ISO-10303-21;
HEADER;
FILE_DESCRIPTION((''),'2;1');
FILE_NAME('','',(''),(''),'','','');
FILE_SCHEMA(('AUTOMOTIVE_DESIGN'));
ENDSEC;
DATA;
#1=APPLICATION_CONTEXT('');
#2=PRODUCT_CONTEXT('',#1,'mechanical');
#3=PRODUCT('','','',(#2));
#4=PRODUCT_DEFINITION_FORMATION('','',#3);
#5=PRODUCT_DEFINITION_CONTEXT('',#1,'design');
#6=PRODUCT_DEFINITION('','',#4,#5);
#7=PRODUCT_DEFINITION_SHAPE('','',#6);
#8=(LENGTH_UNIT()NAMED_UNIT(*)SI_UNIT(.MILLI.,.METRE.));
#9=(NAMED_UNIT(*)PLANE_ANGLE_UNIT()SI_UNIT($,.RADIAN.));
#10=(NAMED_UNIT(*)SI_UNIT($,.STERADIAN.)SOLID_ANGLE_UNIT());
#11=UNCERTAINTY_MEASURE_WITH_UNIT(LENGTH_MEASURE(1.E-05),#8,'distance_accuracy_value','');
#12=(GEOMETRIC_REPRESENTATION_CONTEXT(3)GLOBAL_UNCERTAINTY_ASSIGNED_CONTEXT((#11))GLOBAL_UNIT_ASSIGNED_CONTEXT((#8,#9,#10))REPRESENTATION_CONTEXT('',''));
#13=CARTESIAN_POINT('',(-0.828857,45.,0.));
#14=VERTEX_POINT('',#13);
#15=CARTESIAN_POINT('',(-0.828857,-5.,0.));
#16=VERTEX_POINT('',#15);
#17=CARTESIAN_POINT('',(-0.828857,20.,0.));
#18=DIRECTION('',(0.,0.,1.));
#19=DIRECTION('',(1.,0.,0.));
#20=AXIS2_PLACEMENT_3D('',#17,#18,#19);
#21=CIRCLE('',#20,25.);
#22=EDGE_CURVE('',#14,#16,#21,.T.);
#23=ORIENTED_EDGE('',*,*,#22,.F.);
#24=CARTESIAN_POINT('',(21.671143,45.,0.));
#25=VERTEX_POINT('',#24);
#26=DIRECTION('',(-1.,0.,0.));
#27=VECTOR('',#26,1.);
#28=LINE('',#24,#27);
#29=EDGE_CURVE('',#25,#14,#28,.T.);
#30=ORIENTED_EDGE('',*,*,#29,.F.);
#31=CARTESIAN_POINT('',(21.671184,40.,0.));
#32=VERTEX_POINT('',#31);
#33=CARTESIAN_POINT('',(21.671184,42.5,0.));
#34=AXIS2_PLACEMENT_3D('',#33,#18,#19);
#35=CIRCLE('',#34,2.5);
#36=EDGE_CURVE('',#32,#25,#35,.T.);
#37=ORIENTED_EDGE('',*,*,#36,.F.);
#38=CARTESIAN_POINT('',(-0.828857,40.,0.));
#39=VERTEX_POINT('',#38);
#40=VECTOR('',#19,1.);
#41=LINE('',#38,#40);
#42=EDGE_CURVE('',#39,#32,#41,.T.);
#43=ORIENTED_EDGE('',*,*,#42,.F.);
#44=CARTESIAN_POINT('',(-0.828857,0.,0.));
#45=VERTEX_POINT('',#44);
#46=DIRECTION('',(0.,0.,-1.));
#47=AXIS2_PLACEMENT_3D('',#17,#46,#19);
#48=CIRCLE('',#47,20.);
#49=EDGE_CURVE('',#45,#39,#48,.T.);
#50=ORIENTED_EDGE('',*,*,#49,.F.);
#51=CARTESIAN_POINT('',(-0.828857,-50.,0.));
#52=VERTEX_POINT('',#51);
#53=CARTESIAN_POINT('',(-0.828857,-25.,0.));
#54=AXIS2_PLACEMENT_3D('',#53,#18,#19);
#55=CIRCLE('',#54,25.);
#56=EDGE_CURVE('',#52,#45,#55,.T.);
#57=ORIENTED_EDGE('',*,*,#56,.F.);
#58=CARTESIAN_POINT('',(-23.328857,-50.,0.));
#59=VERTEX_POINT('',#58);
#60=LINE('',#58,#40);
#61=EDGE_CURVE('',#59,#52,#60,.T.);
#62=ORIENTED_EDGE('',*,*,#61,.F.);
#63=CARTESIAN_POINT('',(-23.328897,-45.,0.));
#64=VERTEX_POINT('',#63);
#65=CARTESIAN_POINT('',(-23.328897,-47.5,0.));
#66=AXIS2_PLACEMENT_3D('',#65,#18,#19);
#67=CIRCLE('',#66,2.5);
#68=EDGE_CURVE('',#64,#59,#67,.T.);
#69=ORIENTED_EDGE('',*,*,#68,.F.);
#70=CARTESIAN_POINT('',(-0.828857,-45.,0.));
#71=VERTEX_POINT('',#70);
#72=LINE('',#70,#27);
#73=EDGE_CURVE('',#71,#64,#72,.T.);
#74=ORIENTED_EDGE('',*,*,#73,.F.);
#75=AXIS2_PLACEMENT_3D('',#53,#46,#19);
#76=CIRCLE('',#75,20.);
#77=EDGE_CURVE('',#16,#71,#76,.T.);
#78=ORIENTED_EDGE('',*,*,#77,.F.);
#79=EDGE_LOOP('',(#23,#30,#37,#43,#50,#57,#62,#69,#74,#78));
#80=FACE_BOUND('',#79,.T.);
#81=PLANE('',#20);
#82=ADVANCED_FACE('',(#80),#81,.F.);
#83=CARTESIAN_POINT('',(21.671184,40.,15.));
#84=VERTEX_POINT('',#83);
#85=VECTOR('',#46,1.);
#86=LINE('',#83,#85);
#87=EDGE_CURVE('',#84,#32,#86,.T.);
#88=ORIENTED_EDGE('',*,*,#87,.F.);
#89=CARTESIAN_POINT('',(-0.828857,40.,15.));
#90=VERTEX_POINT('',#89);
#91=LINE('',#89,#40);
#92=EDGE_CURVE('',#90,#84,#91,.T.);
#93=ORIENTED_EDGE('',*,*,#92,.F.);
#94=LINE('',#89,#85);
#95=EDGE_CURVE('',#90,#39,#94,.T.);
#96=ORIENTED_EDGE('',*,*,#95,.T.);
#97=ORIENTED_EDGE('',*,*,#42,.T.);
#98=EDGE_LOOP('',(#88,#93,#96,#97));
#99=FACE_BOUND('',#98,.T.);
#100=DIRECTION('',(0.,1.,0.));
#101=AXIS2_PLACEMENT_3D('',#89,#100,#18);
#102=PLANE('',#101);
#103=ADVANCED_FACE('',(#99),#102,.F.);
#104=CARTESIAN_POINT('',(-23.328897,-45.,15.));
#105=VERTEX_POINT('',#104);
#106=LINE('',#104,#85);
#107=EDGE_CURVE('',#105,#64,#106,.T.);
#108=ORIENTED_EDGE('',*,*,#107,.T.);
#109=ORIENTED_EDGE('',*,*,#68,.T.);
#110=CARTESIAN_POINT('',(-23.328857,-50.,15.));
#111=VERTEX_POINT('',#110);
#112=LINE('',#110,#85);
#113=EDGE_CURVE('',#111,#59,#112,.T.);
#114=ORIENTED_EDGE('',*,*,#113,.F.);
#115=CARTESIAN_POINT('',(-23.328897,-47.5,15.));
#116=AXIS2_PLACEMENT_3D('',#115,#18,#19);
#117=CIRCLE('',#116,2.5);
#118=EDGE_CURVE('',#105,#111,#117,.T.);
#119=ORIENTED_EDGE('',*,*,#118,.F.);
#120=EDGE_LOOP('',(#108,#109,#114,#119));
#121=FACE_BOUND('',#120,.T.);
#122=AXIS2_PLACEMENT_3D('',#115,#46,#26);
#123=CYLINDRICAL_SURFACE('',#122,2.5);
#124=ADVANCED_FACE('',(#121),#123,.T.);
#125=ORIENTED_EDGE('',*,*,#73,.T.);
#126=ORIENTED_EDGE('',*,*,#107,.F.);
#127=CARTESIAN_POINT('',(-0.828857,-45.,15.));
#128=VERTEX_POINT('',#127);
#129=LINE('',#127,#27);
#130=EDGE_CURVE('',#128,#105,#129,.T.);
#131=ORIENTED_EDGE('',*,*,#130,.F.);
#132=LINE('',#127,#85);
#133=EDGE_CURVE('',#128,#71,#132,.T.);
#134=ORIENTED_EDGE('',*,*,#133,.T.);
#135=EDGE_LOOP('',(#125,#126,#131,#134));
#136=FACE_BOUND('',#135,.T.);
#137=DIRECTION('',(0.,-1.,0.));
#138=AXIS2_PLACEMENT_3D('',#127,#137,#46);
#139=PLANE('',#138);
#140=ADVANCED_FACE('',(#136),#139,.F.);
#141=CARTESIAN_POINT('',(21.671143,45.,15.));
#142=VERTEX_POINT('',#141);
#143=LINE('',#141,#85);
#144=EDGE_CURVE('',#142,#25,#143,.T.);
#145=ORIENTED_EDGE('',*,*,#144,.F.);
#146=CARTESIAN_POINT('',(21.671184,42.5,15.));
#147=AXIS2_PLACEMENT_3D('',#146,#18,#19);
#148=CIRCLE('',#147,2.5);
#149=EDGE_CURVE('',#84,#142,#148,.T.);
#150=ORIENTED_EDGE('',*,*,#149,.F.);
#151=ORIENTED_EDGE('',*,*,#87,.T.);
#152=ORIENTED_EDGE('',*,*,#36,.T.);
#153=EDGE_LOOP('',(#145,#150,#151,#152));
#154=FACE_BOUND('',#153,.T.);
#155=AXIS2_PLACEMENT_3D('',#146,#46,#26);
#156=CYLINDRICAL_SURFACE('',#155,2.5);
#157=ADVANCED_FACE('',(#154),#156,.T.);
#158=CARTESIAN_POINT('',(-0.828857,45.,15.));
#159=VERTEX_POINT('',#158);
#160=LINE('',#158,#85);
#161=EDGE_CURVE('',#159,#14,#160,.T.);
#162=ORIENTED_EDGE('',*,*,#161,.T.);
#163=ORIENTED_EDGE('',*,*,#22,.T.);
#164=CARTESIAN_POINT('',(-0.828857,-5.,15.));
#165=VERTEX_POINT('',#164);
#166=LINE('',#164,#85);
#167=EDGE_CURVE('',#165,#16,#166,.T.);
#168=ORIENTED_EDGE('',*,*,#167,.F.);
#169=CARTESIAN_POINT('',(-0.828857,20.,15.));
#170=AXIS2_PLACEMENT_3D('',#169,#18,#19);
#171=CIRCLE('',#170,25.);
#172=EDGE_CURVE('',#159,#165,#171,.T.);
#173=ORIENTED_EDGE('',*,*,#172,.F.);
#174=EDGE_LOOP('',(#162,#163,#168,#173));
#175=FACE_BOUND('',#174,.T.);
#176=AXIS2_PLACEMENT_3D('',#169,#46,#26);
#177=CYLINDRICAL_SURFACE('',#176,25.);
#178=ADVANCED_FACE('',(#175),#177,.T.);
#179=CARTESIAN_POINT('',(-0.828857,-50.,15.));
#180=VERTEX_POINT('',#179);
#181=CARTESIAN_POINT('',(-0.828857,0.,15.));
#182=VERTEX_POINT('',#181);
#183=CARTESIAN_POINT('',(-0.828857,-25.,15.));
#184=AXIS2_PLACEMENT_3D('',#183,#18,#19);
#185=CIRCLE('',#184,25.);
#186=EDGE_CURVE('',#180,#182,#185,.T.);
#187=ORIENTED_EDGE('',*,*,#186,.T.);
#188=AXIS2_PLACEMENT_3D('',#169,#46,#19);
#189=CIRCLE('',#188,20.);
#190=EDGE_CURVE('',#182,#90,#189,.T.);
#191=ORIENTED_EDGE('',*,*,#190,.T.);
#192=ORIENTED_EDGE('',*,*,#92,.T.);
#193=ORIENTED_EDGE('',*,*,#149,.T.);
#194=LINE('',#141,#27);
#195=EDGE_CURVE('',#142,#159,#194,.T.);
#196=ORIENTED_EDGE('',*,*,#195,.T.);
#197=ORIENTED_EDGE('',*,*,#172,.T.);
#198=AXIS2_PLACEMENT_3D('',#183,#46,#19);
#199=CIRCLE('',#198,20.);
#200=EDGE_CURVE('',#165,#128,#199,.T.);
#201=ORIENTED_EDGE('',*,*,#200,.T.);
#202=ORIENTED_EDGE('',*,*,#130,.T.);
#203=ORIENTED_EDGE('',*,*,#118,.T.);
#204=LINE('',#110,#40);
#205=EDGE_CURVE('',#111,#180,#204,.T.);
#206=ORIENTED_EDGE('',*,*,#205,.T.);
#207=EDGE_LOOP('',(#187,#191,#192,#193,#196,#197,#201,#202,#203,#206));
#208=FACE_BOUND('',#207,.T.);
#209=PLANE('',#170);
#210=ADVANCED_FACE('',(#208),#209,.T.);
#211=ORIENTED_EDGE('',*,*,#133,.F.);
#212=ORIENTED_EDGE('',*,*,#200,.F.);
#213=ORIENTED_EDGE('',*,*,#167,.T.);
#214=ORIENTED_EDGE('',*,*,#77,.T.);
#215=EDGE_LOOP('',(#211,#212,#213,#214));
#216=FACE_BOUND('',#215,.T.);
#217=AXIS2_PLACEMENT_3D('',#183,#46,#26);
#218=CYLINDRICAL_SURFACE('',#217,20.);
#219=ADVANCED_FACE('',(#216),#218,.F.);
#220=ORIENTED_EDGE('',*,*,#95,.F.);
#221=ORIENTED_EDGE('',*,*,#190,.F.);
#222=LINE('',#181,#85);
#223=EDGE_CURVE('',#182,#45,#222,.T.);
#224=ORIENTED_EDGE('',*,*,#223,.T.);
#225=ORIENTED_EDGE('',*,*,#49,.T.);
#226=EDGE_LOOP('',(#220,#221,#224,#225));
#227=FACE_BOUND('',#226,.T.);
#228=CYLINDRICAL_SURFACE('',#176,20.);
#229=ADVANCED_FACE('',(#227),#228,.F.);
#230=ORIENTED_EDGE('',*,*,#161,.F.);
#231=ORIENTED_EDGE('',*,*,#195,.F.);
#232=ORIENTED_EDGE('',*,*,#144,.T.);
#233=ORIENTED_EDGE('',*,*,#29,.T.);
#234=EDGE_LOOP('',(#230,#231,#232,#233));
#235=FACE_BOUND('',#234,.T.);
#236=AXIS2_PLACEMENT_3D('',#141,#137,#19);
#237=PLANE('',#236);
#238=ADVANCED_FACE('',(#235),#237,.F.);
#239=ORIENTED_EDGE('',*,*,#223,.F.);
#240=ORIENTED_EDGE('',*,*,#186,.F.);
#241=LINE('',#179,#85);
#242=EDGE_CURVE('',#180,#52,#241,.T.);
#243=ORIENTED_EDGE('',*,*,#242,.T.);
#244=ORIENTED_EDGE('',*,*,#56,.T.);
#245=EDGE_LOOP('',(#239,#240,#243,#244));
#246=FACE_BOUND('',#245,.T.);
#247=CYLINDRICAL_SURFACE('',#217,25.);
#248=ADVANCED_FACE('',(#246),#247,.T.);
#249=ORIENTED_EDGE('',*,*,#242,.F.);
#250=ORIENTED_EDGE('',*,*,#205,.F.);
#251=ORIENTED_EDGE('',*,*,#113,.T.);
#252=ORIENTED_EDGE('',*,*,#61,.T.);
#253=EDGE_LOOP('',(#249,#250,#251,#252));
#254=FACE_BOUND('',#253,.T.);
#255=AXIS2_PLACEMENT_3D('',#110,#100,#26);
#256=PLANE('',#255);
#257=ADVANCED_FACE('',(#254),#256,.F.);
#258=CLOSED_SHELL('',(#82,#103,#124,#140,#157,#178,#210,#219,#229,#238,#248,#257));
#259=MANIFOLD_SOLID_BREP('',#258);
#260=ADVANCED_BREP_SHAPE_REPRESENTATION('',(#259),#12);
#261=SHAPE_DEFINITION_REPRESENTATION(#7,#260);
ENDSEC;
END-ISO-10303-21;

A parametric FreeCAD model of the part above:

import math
import FreeCAD as App
import Part
import Sketcher

doc = App.newDocument("Part")
params = doc.addObject("Spreadsheet::Sheet", "Params")
for row, (alias, value) in enumerate([
    ("sketch1_radius", "25 mm"),
    ("sketch1_radius2", "20 mm"),
    ("sketch1_width", "22.5 mm"),
    ("pad1_length", "15 mm"),
], start=1):
    params.set(f"A{row}", alias)
    params.set(f"B{row}", "=" + value)
    params.setAlias(f"B{row}", alias)

body = doc.addObject("PartDesign::Body", "Body")

# Sketch on XY plane
sketch1 = body.newObject("Sketcher::SketchObject", "Sketch")
sketch1.AttachmentSupport = (doc.getObject("XY_Plane"), [""])
sketch1.MapMode = "FlatFace"
sketch1.addGeometry([
    Part.LineSegment(App.Vector(-0.8, 40, 0), App.Vector(21.7, 40, 0)),  # 0
    Part.ArcOfCircle(Part.Circle(App.Vector(21.7, 42.5, 0), App.Vector(0, 0, 1), 2.5), math.radians(-90), math.radians(90)),  # 1
    Part.LineSegment(App.Vector(21.7, 45, 0), App.Vector(-0.8, 45, 0)),  # 2
    Part.ArcOfCircle(Part.Circle(App.Vector(-0.8, 20, 0), App.Vector(0, 0, 1), 25), math.radians(90), math.radians(270)),  # 3
    Part.ArcOfCircle(Part.Circle(App.Vector(-0.8, -25, 0), App.Vector(0, 0, 1), 20), math.radians(-90), math.radians(90)),  # 4
    Part.LineSegment(App.Vector(-0.8, -45, 0), App.Vector(-23.3, -45, 0)),  # 5
    Part.ArcOfCircle(Part.Circle(App.Vector(-23.3, -47.5, 0), App.Vector(0, 0, 1), 2.5), math.radians(90), math.radians(270)),  # 6
    Part.LineSegment(App.Vector(-23.3, -50, 0), App.Vector(-0.8, -50, 0)),  # 7
    Part.ArcOfCircle(Part.Circle(App.Vector(-0.8, -25, 0), App.Vector(0, 0, 1), 25), math.radians(-90), math.radians(90)),  # 8
    Part.ArcOfCircle(Part.Circle(App.Vector(-0.8, 20, 0), App.Vector(0, 0, 1), 20), math.radians(90), math.radians(270)),  # 9
], False)
sketch1.addConstraint([
    Sketcher.Constraint("Tangent", 0, 2, 1, 1),
    Sketcher.Constraint("Coincident", 1, 2, 2, 1),
    Sketcher.Constraint("Tangent", 2, 2, 3, 1),
    Sketcher.Constraint("Tangent", 3, 2, 4, 2),
    Sketcher.Constraint("Tangent", 4, 1, 5, 1),
    Sketcher.Constraint("Tangent", 5, 2, 6, 1),
    Sketcher.Constraint("Coincident", 6, 2, 7, 1),
    Sketcher.Constraint("Tangent", 7, 2, 8, 1),
    Sketcher.Constraint("Tangent", 8, 2, 9, 2),
    Sketcher.Constraint("Tangent", 9, 1, 0, 1),
    Sketcher.Constraint("Horizontal", 0),
    Sketcher.Constraint("Horizontal", 2),
    Sketcher.Constraint("Horizontal", 5),
    Sketcher.Constraint("Horizontal", 7),
    Sketcher.Constraint("Coincident", 8, 3, 4, 3),
    Sketcher.Constraint("Coincident", 9, 3, 3, 3),
    Sketcher.Constraint("Equal", 3, 8),
    Sketcher.Constraint("Symmetric", 2, 2, 4, 1, -1),
    Sketcher.Constraint("Equal", 0, 5),
    Sketcher.Constraint("Equal", 2, 7),
    Sketcher.Constraint("Radius", 3, 25.0),
    Sketcher.Constraint("Radius", 4, 20.0),
    Sketcher.Constraint("DistanceX", 2, 2, 2, 1, 22.5),
    Sketcher.Constraint("DistanceX", 0, 1, 0, 2, 22.500041),
    Sketcher.Constraint("DistanceX", -1, 1, 1, 3, 21.671184),
])
sketch1.setExpression("Constraints[20]", "Params.sketch1_radius")
sketch1.setExpression("Constraints[21]", "Params.sketch1_radius2")
sketch1.setExpression("Constraints[22]", "Params.sketch1_width")
pad1 = body.newObject("PartDesign::Pad", "Pad")
pad1.Profile = sketch1
pad1.setExpression("Length", "Params.pad1_length")

doc.recompute()
